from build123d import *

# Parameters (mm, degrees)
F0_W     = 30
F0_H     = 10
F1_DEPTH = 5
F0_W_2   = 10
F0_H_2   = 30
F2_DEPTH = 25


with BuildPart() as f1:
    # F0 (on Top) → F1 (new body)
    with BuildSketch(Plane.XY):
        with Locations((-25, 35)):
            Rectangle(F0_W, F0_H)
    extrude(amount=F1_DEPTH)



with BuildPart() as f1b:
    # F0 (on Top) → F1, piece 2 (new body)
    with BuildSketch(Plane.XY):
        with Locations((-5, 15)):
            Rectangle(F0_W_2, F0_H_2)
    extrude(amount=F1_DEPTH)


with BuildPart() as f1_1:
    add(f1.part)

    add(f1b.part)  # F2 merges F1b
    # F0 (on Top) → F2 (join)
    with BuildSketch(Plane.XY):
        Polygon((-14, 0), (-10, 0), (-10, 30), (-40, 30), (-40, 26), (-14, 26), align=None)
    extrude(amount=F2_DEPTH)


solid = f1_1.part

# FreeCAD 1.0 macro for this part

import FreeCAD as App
import Part
import Sketcher
from FreeCAD import Vector


def add_polygon(sketch, points):
    """Adds a closed chain of lines whose ends are joined by coincident constraints."""
    first, n = sketch.GeometryCount, len(points)
    for a, b in zip(points, points[1:] + points[:1]):
        sketch.addGeometry(Part.LineSegment(App.Vector(*a, 0), App.Vector(*b, 0)), False)
    for i in range(n):
        sketch.addConstraint(Sketcher.Constraint("Coincident", first + i, 2, first + (i + 1) % n, 1))

doc = App.newDocument("Part")
body = doc.addObject("PartDesign::Body", "Body")

# Sketch on XY plane
sketch1 = body.newObject("Sketcher::SketchObject", "Sketch")
sketch1.AttachmentSupport = (doc.getObject("XY_Plane"), [""])
sketch1.MapMode = "FlatFace"
add_polygon(sketch1, [(-40, 40), (-40, 30), (-10, 30), (-10, 40)])  # lines 0-3
sketch1.addConstraint(Sketcher.Constraint("Vertical", 0))
sketch1.addConstraint(Sketcher.Constraint("Horizontal", 1))
sketch1.addConstraint(Sketcher.Constraint("Vertical", 2))
sketch1.addConstraint(Sketcher.Constraint("Horizontal", 3))
sketch1.addConstraint(Sketcher.Constraint("DistanceX", 1, 1, 1, 2, 30.0))
sketch1.addConstraint(Sketcher.Constraint("DistanceY", 0, 2, 0, 1, 10.0))
sketch1.addConstraint(Sketcher.Constraint("DistanceX", 0, 2, -1, 1, 40.0))
sketch1.addConstraint(Sketcher.Constraint("DistanceY", -1, 1, 0, 2, 30.0))
pad1 = body.newObject("PartDesign::Pad", "Pad")
pad1.Profile = sketch1
pad1.Length = 5
body2 = doc.addObject("PartDesign::Body", "Body001")

# Sketch on XY plane
sketch2 = body2.newObject("Sketcher::SketchObject", "Sketch001")
sketch2.AttachmentSupport = (doc.getObject("XY_Plane001"), [""])
sketch2.MapMode = "FlatFace"
add_polygon(sketch2, [(-10, 30), (-10, 0), (0, 0), (0, 30)])  # lines 0-3
sketch2.addConstraint(Sketcher.Constraint("Vertical", 0))
sketch2.addConstraint(Sketcher.Constraint("Horizontal", 1))
sketch2.addConstraint(Sketcher.Constraint("Vertical", 2))
sketch2.addConstraint(Sketcher.Constraint("Horizontal", 3))
sketch2.addConstraint(Sketcher.Constraint("Coincident", 1, 2, -1, 1))
sketch2.addConstraint(Sketcher.Constraint("DistanceX", 1, 1, 1, 2, 10.0))
sketch2.addConstraint(Sketcher.Constraint("DistanceY", 0, 2, 0, 1, 30.0))
pad2 = body2.newObject("PartDesign::Pad", "Pad001")
pad2.Profile = sketch2
pad2.Length = 5
body.AllowCompound = True
doc.recompute()

boolean = body.newObject("PartDesign::Boolean", "Boolean")
boolean.Type = "Fuse"
boolean.addObjects([body2])

# Sketch on XY plane
sketch3 = body.newObject("Sketcher::SketchObject", "Sketch002")
sketch3.AttachmentSupport = (doc.getObject("XY_Plane"), [""])
sketch3.MapMode = "FlatFace"
add_polygon(sketch3, [(-14, 0), (-10, 0), (-10, 30), (-40, 30), (-40, 26), (-14, 26)])  # lines 0-5
sketch3.addConstraint(Sketcher.Constraint("Horizontal", 0))
sketch3.addConstraint(Sketcher.Constraint("Vertical", 1))
sketch3.addConstraint(Sketcher.Constraint("Horizontal", 2))
sketch3.addConstraint(Sketcher.Constraint("Vertical", 3))
sketch3.addConstraint(Sketcher.Constraint("Horizontal", 4))
sketch3.addConstraint(Sketcher.Constraint("Vertical", 5))
sketch3.addConstraint(Sketcher.Constraint("PointOnObject", 0, 2, -1))
sketch3.addConstraint(Sketcher.Constraint("Equal", 2, 1))
sketch3.addConstraint(Sketcher.Constraint("Equal", 0, 3))
sketch3.addConstraint(Sketcher.Constraint("DistanceX", 0, 1, 0, 2, 4.0))
sketch3.addConstraint(Sketcher.Constraint("DistanceX", 2, 2, 2, 1, 30.0))
sketch3.addConstraint(Sketcher.Constraint("DistanceX", 0, 2, -1, 1, 10.0))
pad3 = body.newObject("PartDesign::Pad", "Pad002")
pad3.Profile = sketch3
pad3.Length = 25

doc.recompute()
